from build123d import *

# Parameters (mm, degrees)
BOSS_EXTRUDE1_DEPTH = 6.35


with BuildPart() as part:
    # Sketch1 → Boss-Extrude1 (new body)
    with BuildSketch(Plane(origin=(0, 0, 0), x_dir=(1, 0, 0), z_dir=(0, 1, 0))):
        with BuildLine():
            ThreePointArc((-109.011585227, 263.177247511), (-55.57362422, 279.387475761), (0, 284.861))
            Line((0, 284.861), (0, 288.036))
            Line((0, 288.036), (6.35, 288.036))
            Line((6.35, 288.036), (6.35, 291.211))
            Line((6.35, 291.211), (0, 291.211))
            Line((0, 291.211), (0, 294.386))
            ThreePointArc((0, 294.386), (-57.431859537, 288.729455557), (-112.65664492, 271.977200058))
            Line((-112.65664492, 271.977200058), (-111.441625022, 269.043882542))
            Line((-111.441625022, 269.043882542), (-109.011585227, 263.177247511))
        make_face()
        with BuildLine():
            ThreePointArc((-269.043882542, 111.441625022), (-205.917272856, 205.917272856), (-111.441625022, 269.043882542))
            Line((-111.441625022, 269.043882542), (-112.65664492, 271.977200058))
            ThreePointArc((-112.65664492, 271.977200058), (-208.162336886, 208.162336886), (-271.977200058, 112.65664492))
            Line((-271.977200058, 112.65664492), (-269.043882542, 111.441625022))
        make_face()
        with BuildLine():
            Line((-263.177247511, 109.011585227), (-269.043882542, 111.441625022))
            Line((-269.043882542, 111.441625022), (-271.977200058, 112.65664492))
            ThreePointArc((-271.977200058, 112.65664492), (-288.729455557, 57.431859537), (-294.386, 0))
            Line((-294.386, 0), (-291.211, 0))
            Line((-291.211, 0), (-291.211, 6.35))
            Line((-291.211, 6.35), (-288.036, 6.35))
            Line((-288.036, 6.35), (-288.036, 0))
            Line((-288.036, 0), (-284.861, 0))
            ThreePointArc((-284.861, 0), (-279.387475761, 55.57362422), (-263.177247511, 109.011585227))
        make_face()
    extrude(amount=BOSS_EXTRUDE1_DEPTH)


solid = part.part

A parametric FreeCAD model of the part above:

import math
import FreeCAD as App
import Part
import Sketcher

V = App.Vector
Q = App.Units.Quantity

doc = App.newDocument("Part")
body = doc.addObject("PartDesign::Body", "Body")

# Sketch on XZ plane
sketch1 = body.newObject("Sketcher::SketchObject", "Sketch")
sketch1.AttachmentSupport = (doc.getObject("XZ_Plane"), [""])
sketch1.MapMode = "FlatFace"
sketch1.addGeometry([
    Part.ArcOfCircle(Part.Circle(V(0, 0, 0), V(0, 0, 1), 284.861), math.radians(-112.5), math.radians(-90)),  # 0
    Part.LineSegment(V(0, -284.861, 0), V(0, -288.036, 0)),  # 1
    Part.LineSegment(V(0, -288.036, 0), V(6.35, -288.036, 0)),  # 2
    Part.LineSegment(V(6.35, -288.036, 0), V(6.35, -291.211, 0)),  # 3
    Part.LineSegment(V(6.35, -291.211, 0), V(0, -291.211, 0)),  # 4
    Part.LineSegment(V(0, -291.211, 0), V(0, -294.386, 0)),  # 5
    Part.ArcOfCircle(Part.Circle(V(0, 0, 0), V(0, 0, 1), 294.386), math.radians(-112.5), math.radians(-90)),  # 6
    Part.ArcOfCircle(Part.Circle(V(0, 0, 0), V(0, 0, 1), 294.386), math.radians(-157.5), math.radians(-112.5)),  # 7
    Part.ArcOfCircle(Part.Circle(V(0, 0, 0), V(0, 0, 1), 294.386), math.radians(180), math.radians(202.5)),  # 8
    Part.LineSegment(V(-294.386, 0, 0), V(-291.211, 0, 0)),  # 9
    Part.LineSegment(V(-291.211, 0, 0), V(-291.211, -6.35, 0)),  # 10
    Part.LineSegment(V(-291.211, -6.35, 0), V(-288.036, -6.35, 0)),  # 11
    Part.LineSegment(V(-288.036, -6.35, 0), V(-288.036, 0, 0)),  # 12
    Part.LineSegment(V(-288.036, 0, 0), V(-284.861, 0, 0)),  # 13
    Part.ArcOfCircle(Part.Circle(V(0, 0, 0), V(0, 0, 1), 284.861), math.radians(180), math.radians(202.5)),  # 14
    Part.LineSegment(V(-263.177248, -109.011585, 0), V(-269.043883, -111.441625, 0)),  # 15
    Part.ArcOfCircle(Part.Circle(V(0, 0, 0), V(0, 0, 1), 291.211), math.radians(-157.5), math.radians(-112.5)),  # 16
    Part.LineSegment(V(-111.441625, -269.043883, 0), V(-109.011585, -263.177248, 0)),  # 17
], False)
sketch1.addConstraint([
    Sketcher.Constraint("Coincident", 0, 2, 1, 1),
    Sketcher.Constraint("Coincident", 1, 2, 2, 1),
    Sketcher.Constraint("Coincident", 2, 2, 3, 1),
    Sketcher.Constraint("Coincident", 3, 2, 4, 1),
    Sketcher.Constraint("Coincident", 4, 2, 5, 1),
    Sketcher.Constraint("Coincident", 5, 2, 6, 2),
    Sketcher.Constraint("Tangent", 6, 1, 7, 2),
    Sketcher.Constraint("Tangent", 7, 1, 8, 2),
    Sketcher.Constraint("Coincident", 8, 1, 9, 1),
    Sketcher.Constraint("Coincident", 9, 2, 10, 1),
    Sketcher.Constraint("Coincident", 10, 2, 11, 1),
    Sketcher.Constraint("Coincident", 11, 2, 12, 1),
    Sketcher.Constraint("Coincident", 12, 2, 13, 1),
    Sketcher.Constraint("Coincident", 13, 2, 14, 1),
    Sketcher.Constraint("Coincident", 14, 2, 15, 1),
    Sketcher.Constraint("Coincident", 15, 2, 16, 1),
    Sketcher.Constraint("Coincident", 16, 2, 17, 1),
    Sketcher.Constraint("Coincident", 17, 2, 0, 1),
    Sketcher.Constraint("Vertical", 1),
    Sketcher.Constraint("Horizontal", 2),
    Sketcher.Constraint("Vertical", 3),
    Sketcher.Constraint("Horizontal", 4),
    Sketcher.Constraint("Vertical", 5),
    Sketcher.Constraint("Horizontal", 9),
    Sketcher.Constraint("Vertical", 10),
    Sketcher.Constraint("Horizontal", 11),
    Sketcher.Constraint("Vertical", 12),
    Sketcher.Constraint("Horizontal", 13),
    Sketcher.Constraint("Coincident", 0, 3, -1, 1),
    Sketcher.Constraint("Coincident", 6, 3, -1, 1),
    Sketcher.Constraint("Coincident", 8, 3, -1, 1),
    Sketcher.Constraint("Coincident", 14, 3, -1, 1),
    Sketcher.Constraint("Coincident", 16, 3, -1, 1),
    Sketcher.Constraint("Equal", 0, 14),
    Sketcher.Constraint("PointOnObject", 0, 2, -2),
    Sketcher.Constraint("PointOnObject", 4, 2, -2),
    Sketcher.Constraint("PointOnObject", 9, 2, -1),
    Sketcher.Constraint("PointOnObject", 12, 2, -1),
    Sketcher.Constraint("Equal", 9, 11),
    Sketcher.Constraint("Equal", 11, 13),
    Sketcher.Constraint("Equal", 13, 1),
    Sketcher.Constraint("Equal", 1, 3),
    Sketcher.Constraint("Equal", 4, 10),
    Sketcher.Constraint("Radius", 6, Q("11.59 in")),
    Sketcher.Constraint("Radius", 0, Q("11.215 in")),
    Sketcher.Constraint("Radius", 16, Q("11.465 in")),
    Sketcher.Constraint("DistanceX", 2, 1, 2, 2, Q("0.25 in")),
    Sketcher.Constraint("Angle", 15, Q("-157.5 deg")),
    Sketcher.Constraint("Angle", 17, Q("67.5 deg")),
    Sketcher.Constraint("DistanceY", 6, 1, -1, 1, 271.9772),
    Sketcher.Constraint("DistanceX", 7, 1, -1, 1, 271.9772),
    Sketcher.Constraint("DistanceY", 7, 1, 15, 2, 1.21502),
    Sketcher.Constraint("DistanceX", 6, 1, 17, 2, 3.64506),
])
pad1 = body.newObject("PartDesign::Pad", "Pad")
pad1.Profile = sketch1
pad1.Length = Q("0.25 in")
pad1.Reversed = True

doc.recompute()
